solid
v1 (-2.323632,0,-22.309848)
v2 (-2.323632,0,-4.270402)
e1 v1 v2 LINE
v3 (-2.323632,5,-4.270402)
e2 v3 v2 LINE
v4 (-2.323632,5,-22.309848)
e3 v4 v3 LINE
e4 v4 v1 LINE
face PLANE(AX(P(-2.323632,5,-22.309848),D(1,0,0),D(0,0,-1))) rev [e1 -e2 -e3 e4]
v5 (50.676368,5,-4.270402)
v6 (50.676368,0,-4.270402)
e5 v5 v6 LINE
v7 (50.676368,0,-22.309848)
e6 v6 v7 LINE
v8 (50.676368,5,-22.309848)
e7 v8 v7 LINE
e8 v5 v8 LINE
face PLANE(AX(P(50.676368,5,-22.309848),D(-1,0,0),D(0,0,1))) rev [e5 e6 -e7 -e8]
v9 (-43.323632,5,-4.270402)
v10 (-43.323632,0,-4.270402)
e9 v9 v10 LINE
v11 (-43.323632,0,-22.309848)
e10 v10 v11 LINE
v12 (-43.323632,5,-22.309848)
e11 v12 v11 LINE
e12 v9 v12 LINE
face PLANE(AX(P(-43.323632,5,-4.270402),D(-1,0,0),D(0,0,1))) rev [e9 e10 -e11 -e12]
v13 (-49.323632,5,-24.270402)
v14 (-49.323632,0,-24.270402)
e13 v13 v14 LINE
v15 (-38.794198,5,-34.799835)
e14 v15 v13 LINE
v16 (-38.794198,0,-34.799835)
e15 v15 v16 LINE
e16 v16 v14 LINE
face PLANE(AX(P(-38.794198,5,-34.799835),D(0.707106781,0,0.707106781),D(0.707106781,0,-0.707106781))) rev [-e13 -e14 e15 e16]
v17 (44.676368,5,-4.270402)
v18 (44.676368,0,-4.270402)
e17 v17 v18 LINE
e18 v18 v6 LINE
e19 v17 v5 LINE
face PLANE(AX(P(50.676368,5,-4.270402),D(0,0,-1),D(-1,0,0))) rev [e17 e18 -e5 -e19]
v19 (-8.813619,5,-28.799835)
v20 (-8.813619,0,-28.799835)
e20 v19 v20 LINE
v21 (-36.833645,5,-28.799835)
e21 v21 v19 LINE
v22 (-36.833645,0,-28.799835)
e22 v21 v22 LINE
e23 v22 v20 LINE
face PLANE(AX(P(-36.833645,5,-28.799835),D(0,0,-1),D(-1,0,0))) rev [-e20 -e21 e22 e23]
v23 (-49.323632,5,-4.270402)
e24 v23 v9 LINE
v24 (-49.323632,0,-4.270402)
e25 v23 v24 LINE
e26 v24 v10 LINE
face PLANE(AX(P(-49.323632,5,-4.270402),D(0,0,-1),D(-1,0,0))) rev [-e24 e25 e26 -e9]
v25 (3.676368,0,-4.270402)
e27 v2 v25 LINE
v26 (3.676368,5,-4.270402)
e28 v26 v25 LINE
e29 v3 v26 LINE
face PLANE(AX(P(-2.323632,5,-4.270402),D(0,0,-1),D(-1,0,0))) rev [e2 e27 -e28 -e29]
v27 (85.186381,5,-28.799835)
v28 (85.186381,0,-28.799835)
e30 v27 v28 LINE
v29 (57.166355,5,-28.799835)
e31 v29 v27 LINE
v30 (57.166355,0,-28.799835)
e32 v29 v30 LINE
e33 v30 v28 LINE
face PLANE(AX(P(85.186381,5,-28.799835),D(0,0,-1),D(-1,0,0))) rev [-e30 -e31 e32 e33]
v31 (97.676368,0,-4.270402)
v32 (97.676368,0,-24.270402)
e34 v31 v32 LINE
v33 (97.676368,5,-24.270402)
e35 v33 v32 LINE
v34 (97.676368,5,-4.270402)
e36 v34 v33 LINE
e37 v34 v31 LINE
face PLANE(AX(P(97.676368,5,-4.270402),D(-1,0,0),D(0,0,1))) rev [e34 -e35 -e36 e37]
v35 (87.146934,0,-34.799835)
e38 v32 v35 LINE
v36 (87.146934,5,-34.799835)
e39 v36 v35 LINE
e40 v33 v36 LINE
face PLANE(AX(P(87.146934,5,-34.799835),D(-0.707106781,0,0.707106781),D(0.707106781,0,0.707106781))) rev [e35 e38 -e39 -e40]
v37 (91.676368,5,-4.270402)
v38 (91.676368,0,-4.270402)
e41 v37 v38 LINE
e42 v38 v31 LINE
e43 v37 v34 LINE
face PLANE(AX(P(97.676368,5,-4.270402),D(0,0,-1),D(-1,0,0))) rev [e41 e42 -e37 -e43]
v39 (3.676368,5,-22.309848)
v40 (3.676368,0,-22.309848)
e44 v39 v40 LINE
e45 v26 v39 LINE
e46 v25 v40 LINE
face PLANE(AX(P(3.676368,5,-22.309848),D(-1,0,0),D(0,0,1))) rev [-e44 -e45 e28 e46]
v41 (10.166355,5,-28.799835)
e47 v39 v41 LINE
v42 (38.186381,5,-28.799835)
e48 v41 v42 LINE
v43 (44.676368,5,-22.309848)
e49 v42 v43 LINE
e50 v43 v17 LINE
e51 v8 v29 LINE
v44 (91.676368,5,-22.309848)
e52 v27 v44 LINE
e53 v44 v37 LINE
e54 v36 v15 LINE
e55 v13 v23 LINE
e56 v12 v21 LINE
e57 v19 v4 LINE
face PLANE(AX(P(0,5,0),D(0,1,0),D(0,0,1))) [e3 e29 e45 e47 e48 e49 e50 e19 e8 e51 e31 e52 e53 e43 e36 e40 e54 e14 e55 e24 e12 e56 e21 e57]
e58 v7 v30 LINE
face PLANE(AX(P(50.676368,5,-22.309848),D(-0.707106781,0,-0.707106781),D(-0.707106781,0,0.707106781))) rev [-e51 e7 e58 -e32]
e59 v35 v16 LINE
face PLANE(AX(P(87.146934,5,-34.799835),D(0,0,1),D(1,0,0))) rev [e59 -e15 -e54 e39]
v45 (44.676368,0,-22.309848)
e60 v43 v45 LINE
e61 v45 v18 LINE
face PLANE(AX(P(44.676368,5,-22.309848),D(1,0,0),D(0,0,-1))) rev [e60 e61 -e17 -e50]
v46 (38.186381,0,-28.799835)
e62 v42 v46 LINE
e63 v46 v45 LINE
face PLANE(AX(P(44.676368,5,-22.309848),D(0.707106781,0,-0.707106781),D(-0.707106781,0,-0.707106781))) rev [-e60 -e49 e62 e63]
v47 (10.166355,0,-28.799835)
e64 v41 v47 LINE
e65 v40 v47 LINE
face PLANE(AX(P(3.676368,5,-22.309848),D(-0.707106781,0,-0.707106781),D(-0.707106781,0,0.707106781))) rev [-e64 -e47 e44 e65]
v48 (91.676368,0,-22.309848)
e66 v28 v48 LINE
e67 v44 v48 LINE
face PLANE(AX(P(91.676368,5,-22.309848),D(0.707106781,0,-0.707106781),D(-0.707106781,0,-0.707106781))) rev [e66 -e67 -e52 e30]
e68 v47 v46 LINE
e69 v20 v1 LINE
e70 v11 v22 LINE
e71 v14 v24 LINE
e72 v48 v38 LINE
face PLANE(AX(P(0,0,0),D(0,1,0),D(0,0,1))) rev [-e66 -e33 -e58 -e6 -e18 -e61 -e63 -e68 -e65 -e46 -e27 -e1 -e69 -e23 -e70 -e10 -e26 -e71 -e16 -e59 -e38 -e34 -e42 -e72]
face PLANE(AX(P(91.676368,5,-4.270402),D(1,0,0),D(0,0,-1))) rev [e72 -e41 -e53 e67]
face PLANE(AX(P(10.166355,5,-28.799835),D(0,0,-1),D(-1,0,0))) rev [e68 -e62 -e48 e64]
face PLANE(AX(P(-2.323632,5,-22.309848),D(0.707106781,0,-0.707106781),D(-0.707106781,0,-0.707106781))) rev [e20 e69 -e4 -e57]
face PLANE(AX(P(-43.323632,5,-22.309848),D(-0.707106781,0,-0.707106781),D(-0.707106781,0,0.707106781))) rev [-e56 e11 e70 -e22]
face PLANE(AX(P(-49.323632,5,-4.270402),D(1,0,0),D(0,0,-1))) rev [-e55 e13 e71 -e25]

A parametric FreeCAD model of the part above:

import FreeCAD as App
import Part
import Sketcher

V = App.Vector
Q = App.Units.Quantity


def add_polygon(sketch, points):
    """Adds a closed chain of lines whose ends are joined by coincident constraints."""
    first, n = sketch.GeometryCount, len(points)
    for a, b in zip(points, points[1:] + points[:1]):
        sketch.addGeometry(Part.LineSegment(App.Vector(*a, 0), App.Vector(*b, 0)), False)
    for i in range(n):
        sketch.addConstraint(Sketcher.Constraint("Coincident", first + i, 2, first + (i + 1) % n, 1))

doc = App.newDocument("Part")
params = doc.addObject("Spreadsheet::Sheet", "Params")
for row, (alias, value) in enumerate([
    ("sketch1_width", "6 mm"),
    ("sketch1_height", "20 mm"),
    ("pad1_length", "5 mm"),
], start=1):
    params.set(f"A{row}", alias)
    params.set(f"B{row}", "=" + value)
    params.setAlias(f"B{row}", alias)

body = doc.addObject("PartDesign::Body", "Body")

sketch1 = body.newObject("Sketcher::SketchObject", "Sketch")
sketch1.AttachmentSupport = (doc.getObject("XZ_Plane"), [""])
sketch1.MapMode = "FlatFace"
add_polygon(sketch1, [(-38.794198, -34.799835), (-49.323632, -24.270402), (-49.323632, -4.270402), (-43.323632, -4.270402), (-43.323632, -22.309848), (-36.833645, -28.799835), (-8.813619, -28.799835), (-2.323632, -22.309848), (-2.323632, -4.270402), (3.676368, -4.270402), (3.676368, -22.309848), (10.166355, -28.799835), (38.186381, -28.799835), (44.676368, -22.309848), (44.676368, -4.270402), (50.676368, -4.270402), (50.676368, -22.309848), (57.166355, -28.799835), (85.186381, -28.799835), (91.676368, -22.309848), (91.676368, -4.270402), (97.676368, -4.270402), (97.676368, -24.270402), (87.146934, -34.799835)])
sketch1.addConstraint([
    Sketcher.Constraint("Vertical", 1),
    Sketcher.Constraint("Horizontal", 2),
    Sketcher.Constraint("Vertical", 3),
    Sketcher.Constraint("Horizontal", 5),
    Sketcher.Constraint("Vertical", 7),
    Sketcher.Constraint("Horizontal", 8),
    Sketcher.Constraint("Vertical", 9),
    Sketcher.Constraint("Horizontal", 11),
    Sketcher.Constraint("Vertical", 13),
    Sketcher.Constraint("Horizontal", 14),
    Sketcher.Constraint("Vertical", 15),
    Sketcher.Constraint("Horizontal", 17),
    Sketcher.Constraint("Vertical", 19),
    Sketcher.Constraint("Horizontal", 20),
    Sketcher.Constraint("Vertical", 21),
    Sketcher.Constraint("Horizontal", 23),
    Sketcher.Constraint("Parallel", 0, 4),
    Sketcher.Constraint("Perpendicular", 4, 6),
    Sketcher.Constraint("Perpendicular", 6, 10),
    Sketcher.Constraint("Perpendicular", 10, 12),
    Sketcher.Constraint("Perpendicular", 12, 16),
    Sketcher.Constraint("Perpendicular", 16, 18),
    Sketcher.Constraint("Parallel", 18, 22),
    Sketcher.Constraint("Horizontal", 3, 2, 6, 2),
    Sketcher.Constraint("Horizontal", 2, 2, 7, 2),
    Sketcher.Constraint("Horizontal", 6, 2, 9, 2),
    Sketcher.Constraint("Horizontal", 5, 2, 10, 2),
    Sketcher.Constraint("Horizontal", 9, 2, 12, 2),
    Sketcher.Constraint("Horizontal", 8, 2, 13, 2),
    Sketcher.Constraint("Horizontal", 12, 2, 15, 2),
    Sketcher.Constraint("Horizontal", 11, 2, 16, 2),
    Sketcher.Constraint("Horizontal", 15, 2, 18, 2),
    Sketcher.Constraint("Horizontal", 14, 2, 19, 2),
    Sketcher.Constraint("Horizontal", 0, 2, 21, 2),
    Sketcher.Constraint("Equal", 2, 8),
    Sketcher.Constraint("Equal", 5, 11),
    Sketcher.Constraint("Equal", 8, 14),
    Sketcher.Constraint("Equal", 11, 17),
    Sketcher.Constraint("Equal", 14, 20),
    Sketcher.Constraint("Equal", 4, 6),
    Sketcher.Constraint("DistanceX", 2, 1, 2, 2, Q("6 mm")),
    Sketcher.Constraint("DistanceY", 1, 1, 1, 2, Q("20 mm")),
    Sketcher.Constraint("DistanceX", 3, 2, 6, 2, Q("41 mm")),
    Sketcher.Constraint("DistanceY", 22, 2, 17, 2, Q("6 mm")),
    Sketcher.Constraint("DistanceY", 0, 2, -1, 1, Q("24.270402 mm")),
    Sketcher.Constraint("DistanceX", 23, 2, -1, 1, Q("38.794198 mm")),
    Sketcher.Constraint("Distance", 0, Q("14.890868 mm")),
    Sketcher.Constraint("DistanceX", 5, 1, 5, 2, Q("28.020026 mm")),
])
sketch1.setExpression("Constraints[64]", "Params.sketch1_width")
sketch1.setExpression("Constraints[65]", "Params.sketch1_height")
pad1 = body.newObject("PartDesign::Pad", "Pad")
pad1.Profile = sketch1
pad1.setExpression("Length", "Params.pad1_length")
pad1.Reversed = True

doc.recompute()
